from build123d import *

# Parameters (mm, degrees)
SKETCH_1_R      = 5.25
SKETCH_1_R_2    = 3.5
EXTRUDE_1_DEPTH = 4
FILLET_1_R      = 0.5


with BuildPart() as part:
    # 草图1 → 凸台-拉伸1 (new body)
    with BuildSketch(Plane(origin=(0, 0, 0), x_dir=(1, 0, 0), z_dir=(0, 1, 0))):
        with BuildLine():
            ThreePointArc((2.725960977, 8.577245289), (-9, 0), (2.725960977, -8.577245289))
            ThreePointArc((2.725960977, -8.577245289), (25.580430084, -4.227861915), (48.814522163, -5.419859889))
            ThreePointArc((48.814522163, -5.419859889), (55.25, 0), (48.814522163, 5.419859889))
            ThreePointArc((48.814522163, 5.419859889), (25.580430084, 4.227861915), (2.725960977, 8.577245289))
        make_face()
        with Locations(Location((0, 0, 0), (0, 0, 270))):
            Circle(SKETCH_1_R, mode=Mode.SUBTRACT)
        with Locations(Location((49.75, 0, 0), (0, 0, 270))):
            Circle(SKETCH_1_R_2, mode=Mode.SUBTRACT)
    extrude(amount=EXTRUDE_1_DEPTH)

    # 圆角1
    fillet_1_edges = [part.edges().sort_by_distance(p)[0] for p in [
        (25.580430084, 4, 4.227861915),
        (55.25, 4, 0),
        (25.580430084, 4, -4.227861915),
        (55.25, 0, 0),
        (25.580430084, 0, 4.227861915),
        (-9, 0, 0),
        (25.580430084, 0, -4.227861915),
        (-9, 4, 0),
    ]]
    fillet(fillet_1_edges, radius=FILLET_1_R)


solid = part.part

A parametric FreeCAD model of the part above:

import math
import FreeCAD as App
import Part
import Sketcher
from FreeCAD import Vector


def edges_at(feature, points):
    """Names of the edges that pass closest to the given points."""
    edges = feature.Shape.Edges
    near = lambda p: min(range(len(edges)), key=lambda i: edges[i].distToShape(Part.Vertex(*p))[0])
    return sorted({f"Edge{near(p) + 1}" for p in points})

doc = App.newDocument("Part")
body = doc.addObject("PartDesign::Body", "Body")

# Sketch on XZ plane
sketch1 = body.newObject("Sketcher::SketchObject", "Sketch")
sketch1.AttachmentSupport = (doc.getObject("XZ_Plane"), [""])
sketch1.MapMode = "FlatFace"
sketch1.addGeometry([
    Part.ArcOfCircle(Part.Circle(Vector(0, 0, 0), Vector(0, 0, 1), 9), math.radians(72.369061), math.radians(287.630939)),  # 0
    Part.ArcOfCircle(Part.Circle(Vector(32.240457, 101.444704, 0), Vector(0, 0, 1), 97.444704), math.radians(-107.630939), math.radians(-80.20713)),  # 1
    Part.ArcOfCircle(Part.Circle(Vector(49.75, 0, 0), Vector(0, 0, 1), 5.5), math.radians(-99.79287), math.radians(99.79287)),  # 2
    Part.ArcOfCircle(Part.Circle(Vector(32.240457, -101.444704, 0), Vector(0, 0, 1), 97.444704), math.radians(80.20713), math.radians(107.630939)),  # 3
    Part.Circle(Vector(0, 0, 0), Vector(0, 0, 1), 5.25),  # 4
    Part.Circle(Vector(49.75, 0, 0), Vector(0, 0, 1), 3.5),  # 5
], False)
sketch1.addConstraint([
    Sketcher.Constraint("Tangent", 0, 1, 1, 1),
    Sketcher.Constraint("Tangent", 1, 2, 2, 2),
    Sketcher.Constraint("Tangent", 2, 1, 3, 1),
    Sketcher.Constraint("Tangent", 3, 2, 0, 2),
    Sketcher.Constraint("Coincident", 0, 3, -1, 1),
    Sketcher.Constraint("Coincident", 4, 3, -1, 1),
    Sketcher.Constraint("Coincident", 5, 3, 2, 3),
    Sketcher.Constraint("Equal", 1, 3),
    Sketcher.Constraint("PointOnObject", 2, 3, -1),
    Sketcher.Constraint("Diameter", 5, 7.0),
    Sketcher.Constraint("Radius", 0, 9.0),
    Sketcher.Constraint("Diameter", 4, 10.5),
    Sketcher.Constraint("Radius", 2, 5.5),
    Sketcher.Constraint("DistanceX", -1, 1, 2, 3, 49.75),
    Sketcher.Constraint("Radius", 1, 97.444704),
])
pad1 = body.newObject("PartDesign::Pad", "Pad")
pad1.Profile = sketch1
pad1.Length = 4
pad1.Reversed = True
doc.recompute()

fillet = body.newObject("PartDesign::Fillet", "Fillet")
fillet.Base = (pad1, edges_at(pad1, [
    (25.58, 4, 4.228),
    (55.25, 4, 0),
    (25.58, 4, -4.228),
    (55.25, 0, 0),
    (25.58, 0, 4.228),
    (-9, 0, 0),
    (25.58, 0, -4.228),
    (-9, 4, 0),
]))
fillet.Radius = 0.5

doc.recompute()
